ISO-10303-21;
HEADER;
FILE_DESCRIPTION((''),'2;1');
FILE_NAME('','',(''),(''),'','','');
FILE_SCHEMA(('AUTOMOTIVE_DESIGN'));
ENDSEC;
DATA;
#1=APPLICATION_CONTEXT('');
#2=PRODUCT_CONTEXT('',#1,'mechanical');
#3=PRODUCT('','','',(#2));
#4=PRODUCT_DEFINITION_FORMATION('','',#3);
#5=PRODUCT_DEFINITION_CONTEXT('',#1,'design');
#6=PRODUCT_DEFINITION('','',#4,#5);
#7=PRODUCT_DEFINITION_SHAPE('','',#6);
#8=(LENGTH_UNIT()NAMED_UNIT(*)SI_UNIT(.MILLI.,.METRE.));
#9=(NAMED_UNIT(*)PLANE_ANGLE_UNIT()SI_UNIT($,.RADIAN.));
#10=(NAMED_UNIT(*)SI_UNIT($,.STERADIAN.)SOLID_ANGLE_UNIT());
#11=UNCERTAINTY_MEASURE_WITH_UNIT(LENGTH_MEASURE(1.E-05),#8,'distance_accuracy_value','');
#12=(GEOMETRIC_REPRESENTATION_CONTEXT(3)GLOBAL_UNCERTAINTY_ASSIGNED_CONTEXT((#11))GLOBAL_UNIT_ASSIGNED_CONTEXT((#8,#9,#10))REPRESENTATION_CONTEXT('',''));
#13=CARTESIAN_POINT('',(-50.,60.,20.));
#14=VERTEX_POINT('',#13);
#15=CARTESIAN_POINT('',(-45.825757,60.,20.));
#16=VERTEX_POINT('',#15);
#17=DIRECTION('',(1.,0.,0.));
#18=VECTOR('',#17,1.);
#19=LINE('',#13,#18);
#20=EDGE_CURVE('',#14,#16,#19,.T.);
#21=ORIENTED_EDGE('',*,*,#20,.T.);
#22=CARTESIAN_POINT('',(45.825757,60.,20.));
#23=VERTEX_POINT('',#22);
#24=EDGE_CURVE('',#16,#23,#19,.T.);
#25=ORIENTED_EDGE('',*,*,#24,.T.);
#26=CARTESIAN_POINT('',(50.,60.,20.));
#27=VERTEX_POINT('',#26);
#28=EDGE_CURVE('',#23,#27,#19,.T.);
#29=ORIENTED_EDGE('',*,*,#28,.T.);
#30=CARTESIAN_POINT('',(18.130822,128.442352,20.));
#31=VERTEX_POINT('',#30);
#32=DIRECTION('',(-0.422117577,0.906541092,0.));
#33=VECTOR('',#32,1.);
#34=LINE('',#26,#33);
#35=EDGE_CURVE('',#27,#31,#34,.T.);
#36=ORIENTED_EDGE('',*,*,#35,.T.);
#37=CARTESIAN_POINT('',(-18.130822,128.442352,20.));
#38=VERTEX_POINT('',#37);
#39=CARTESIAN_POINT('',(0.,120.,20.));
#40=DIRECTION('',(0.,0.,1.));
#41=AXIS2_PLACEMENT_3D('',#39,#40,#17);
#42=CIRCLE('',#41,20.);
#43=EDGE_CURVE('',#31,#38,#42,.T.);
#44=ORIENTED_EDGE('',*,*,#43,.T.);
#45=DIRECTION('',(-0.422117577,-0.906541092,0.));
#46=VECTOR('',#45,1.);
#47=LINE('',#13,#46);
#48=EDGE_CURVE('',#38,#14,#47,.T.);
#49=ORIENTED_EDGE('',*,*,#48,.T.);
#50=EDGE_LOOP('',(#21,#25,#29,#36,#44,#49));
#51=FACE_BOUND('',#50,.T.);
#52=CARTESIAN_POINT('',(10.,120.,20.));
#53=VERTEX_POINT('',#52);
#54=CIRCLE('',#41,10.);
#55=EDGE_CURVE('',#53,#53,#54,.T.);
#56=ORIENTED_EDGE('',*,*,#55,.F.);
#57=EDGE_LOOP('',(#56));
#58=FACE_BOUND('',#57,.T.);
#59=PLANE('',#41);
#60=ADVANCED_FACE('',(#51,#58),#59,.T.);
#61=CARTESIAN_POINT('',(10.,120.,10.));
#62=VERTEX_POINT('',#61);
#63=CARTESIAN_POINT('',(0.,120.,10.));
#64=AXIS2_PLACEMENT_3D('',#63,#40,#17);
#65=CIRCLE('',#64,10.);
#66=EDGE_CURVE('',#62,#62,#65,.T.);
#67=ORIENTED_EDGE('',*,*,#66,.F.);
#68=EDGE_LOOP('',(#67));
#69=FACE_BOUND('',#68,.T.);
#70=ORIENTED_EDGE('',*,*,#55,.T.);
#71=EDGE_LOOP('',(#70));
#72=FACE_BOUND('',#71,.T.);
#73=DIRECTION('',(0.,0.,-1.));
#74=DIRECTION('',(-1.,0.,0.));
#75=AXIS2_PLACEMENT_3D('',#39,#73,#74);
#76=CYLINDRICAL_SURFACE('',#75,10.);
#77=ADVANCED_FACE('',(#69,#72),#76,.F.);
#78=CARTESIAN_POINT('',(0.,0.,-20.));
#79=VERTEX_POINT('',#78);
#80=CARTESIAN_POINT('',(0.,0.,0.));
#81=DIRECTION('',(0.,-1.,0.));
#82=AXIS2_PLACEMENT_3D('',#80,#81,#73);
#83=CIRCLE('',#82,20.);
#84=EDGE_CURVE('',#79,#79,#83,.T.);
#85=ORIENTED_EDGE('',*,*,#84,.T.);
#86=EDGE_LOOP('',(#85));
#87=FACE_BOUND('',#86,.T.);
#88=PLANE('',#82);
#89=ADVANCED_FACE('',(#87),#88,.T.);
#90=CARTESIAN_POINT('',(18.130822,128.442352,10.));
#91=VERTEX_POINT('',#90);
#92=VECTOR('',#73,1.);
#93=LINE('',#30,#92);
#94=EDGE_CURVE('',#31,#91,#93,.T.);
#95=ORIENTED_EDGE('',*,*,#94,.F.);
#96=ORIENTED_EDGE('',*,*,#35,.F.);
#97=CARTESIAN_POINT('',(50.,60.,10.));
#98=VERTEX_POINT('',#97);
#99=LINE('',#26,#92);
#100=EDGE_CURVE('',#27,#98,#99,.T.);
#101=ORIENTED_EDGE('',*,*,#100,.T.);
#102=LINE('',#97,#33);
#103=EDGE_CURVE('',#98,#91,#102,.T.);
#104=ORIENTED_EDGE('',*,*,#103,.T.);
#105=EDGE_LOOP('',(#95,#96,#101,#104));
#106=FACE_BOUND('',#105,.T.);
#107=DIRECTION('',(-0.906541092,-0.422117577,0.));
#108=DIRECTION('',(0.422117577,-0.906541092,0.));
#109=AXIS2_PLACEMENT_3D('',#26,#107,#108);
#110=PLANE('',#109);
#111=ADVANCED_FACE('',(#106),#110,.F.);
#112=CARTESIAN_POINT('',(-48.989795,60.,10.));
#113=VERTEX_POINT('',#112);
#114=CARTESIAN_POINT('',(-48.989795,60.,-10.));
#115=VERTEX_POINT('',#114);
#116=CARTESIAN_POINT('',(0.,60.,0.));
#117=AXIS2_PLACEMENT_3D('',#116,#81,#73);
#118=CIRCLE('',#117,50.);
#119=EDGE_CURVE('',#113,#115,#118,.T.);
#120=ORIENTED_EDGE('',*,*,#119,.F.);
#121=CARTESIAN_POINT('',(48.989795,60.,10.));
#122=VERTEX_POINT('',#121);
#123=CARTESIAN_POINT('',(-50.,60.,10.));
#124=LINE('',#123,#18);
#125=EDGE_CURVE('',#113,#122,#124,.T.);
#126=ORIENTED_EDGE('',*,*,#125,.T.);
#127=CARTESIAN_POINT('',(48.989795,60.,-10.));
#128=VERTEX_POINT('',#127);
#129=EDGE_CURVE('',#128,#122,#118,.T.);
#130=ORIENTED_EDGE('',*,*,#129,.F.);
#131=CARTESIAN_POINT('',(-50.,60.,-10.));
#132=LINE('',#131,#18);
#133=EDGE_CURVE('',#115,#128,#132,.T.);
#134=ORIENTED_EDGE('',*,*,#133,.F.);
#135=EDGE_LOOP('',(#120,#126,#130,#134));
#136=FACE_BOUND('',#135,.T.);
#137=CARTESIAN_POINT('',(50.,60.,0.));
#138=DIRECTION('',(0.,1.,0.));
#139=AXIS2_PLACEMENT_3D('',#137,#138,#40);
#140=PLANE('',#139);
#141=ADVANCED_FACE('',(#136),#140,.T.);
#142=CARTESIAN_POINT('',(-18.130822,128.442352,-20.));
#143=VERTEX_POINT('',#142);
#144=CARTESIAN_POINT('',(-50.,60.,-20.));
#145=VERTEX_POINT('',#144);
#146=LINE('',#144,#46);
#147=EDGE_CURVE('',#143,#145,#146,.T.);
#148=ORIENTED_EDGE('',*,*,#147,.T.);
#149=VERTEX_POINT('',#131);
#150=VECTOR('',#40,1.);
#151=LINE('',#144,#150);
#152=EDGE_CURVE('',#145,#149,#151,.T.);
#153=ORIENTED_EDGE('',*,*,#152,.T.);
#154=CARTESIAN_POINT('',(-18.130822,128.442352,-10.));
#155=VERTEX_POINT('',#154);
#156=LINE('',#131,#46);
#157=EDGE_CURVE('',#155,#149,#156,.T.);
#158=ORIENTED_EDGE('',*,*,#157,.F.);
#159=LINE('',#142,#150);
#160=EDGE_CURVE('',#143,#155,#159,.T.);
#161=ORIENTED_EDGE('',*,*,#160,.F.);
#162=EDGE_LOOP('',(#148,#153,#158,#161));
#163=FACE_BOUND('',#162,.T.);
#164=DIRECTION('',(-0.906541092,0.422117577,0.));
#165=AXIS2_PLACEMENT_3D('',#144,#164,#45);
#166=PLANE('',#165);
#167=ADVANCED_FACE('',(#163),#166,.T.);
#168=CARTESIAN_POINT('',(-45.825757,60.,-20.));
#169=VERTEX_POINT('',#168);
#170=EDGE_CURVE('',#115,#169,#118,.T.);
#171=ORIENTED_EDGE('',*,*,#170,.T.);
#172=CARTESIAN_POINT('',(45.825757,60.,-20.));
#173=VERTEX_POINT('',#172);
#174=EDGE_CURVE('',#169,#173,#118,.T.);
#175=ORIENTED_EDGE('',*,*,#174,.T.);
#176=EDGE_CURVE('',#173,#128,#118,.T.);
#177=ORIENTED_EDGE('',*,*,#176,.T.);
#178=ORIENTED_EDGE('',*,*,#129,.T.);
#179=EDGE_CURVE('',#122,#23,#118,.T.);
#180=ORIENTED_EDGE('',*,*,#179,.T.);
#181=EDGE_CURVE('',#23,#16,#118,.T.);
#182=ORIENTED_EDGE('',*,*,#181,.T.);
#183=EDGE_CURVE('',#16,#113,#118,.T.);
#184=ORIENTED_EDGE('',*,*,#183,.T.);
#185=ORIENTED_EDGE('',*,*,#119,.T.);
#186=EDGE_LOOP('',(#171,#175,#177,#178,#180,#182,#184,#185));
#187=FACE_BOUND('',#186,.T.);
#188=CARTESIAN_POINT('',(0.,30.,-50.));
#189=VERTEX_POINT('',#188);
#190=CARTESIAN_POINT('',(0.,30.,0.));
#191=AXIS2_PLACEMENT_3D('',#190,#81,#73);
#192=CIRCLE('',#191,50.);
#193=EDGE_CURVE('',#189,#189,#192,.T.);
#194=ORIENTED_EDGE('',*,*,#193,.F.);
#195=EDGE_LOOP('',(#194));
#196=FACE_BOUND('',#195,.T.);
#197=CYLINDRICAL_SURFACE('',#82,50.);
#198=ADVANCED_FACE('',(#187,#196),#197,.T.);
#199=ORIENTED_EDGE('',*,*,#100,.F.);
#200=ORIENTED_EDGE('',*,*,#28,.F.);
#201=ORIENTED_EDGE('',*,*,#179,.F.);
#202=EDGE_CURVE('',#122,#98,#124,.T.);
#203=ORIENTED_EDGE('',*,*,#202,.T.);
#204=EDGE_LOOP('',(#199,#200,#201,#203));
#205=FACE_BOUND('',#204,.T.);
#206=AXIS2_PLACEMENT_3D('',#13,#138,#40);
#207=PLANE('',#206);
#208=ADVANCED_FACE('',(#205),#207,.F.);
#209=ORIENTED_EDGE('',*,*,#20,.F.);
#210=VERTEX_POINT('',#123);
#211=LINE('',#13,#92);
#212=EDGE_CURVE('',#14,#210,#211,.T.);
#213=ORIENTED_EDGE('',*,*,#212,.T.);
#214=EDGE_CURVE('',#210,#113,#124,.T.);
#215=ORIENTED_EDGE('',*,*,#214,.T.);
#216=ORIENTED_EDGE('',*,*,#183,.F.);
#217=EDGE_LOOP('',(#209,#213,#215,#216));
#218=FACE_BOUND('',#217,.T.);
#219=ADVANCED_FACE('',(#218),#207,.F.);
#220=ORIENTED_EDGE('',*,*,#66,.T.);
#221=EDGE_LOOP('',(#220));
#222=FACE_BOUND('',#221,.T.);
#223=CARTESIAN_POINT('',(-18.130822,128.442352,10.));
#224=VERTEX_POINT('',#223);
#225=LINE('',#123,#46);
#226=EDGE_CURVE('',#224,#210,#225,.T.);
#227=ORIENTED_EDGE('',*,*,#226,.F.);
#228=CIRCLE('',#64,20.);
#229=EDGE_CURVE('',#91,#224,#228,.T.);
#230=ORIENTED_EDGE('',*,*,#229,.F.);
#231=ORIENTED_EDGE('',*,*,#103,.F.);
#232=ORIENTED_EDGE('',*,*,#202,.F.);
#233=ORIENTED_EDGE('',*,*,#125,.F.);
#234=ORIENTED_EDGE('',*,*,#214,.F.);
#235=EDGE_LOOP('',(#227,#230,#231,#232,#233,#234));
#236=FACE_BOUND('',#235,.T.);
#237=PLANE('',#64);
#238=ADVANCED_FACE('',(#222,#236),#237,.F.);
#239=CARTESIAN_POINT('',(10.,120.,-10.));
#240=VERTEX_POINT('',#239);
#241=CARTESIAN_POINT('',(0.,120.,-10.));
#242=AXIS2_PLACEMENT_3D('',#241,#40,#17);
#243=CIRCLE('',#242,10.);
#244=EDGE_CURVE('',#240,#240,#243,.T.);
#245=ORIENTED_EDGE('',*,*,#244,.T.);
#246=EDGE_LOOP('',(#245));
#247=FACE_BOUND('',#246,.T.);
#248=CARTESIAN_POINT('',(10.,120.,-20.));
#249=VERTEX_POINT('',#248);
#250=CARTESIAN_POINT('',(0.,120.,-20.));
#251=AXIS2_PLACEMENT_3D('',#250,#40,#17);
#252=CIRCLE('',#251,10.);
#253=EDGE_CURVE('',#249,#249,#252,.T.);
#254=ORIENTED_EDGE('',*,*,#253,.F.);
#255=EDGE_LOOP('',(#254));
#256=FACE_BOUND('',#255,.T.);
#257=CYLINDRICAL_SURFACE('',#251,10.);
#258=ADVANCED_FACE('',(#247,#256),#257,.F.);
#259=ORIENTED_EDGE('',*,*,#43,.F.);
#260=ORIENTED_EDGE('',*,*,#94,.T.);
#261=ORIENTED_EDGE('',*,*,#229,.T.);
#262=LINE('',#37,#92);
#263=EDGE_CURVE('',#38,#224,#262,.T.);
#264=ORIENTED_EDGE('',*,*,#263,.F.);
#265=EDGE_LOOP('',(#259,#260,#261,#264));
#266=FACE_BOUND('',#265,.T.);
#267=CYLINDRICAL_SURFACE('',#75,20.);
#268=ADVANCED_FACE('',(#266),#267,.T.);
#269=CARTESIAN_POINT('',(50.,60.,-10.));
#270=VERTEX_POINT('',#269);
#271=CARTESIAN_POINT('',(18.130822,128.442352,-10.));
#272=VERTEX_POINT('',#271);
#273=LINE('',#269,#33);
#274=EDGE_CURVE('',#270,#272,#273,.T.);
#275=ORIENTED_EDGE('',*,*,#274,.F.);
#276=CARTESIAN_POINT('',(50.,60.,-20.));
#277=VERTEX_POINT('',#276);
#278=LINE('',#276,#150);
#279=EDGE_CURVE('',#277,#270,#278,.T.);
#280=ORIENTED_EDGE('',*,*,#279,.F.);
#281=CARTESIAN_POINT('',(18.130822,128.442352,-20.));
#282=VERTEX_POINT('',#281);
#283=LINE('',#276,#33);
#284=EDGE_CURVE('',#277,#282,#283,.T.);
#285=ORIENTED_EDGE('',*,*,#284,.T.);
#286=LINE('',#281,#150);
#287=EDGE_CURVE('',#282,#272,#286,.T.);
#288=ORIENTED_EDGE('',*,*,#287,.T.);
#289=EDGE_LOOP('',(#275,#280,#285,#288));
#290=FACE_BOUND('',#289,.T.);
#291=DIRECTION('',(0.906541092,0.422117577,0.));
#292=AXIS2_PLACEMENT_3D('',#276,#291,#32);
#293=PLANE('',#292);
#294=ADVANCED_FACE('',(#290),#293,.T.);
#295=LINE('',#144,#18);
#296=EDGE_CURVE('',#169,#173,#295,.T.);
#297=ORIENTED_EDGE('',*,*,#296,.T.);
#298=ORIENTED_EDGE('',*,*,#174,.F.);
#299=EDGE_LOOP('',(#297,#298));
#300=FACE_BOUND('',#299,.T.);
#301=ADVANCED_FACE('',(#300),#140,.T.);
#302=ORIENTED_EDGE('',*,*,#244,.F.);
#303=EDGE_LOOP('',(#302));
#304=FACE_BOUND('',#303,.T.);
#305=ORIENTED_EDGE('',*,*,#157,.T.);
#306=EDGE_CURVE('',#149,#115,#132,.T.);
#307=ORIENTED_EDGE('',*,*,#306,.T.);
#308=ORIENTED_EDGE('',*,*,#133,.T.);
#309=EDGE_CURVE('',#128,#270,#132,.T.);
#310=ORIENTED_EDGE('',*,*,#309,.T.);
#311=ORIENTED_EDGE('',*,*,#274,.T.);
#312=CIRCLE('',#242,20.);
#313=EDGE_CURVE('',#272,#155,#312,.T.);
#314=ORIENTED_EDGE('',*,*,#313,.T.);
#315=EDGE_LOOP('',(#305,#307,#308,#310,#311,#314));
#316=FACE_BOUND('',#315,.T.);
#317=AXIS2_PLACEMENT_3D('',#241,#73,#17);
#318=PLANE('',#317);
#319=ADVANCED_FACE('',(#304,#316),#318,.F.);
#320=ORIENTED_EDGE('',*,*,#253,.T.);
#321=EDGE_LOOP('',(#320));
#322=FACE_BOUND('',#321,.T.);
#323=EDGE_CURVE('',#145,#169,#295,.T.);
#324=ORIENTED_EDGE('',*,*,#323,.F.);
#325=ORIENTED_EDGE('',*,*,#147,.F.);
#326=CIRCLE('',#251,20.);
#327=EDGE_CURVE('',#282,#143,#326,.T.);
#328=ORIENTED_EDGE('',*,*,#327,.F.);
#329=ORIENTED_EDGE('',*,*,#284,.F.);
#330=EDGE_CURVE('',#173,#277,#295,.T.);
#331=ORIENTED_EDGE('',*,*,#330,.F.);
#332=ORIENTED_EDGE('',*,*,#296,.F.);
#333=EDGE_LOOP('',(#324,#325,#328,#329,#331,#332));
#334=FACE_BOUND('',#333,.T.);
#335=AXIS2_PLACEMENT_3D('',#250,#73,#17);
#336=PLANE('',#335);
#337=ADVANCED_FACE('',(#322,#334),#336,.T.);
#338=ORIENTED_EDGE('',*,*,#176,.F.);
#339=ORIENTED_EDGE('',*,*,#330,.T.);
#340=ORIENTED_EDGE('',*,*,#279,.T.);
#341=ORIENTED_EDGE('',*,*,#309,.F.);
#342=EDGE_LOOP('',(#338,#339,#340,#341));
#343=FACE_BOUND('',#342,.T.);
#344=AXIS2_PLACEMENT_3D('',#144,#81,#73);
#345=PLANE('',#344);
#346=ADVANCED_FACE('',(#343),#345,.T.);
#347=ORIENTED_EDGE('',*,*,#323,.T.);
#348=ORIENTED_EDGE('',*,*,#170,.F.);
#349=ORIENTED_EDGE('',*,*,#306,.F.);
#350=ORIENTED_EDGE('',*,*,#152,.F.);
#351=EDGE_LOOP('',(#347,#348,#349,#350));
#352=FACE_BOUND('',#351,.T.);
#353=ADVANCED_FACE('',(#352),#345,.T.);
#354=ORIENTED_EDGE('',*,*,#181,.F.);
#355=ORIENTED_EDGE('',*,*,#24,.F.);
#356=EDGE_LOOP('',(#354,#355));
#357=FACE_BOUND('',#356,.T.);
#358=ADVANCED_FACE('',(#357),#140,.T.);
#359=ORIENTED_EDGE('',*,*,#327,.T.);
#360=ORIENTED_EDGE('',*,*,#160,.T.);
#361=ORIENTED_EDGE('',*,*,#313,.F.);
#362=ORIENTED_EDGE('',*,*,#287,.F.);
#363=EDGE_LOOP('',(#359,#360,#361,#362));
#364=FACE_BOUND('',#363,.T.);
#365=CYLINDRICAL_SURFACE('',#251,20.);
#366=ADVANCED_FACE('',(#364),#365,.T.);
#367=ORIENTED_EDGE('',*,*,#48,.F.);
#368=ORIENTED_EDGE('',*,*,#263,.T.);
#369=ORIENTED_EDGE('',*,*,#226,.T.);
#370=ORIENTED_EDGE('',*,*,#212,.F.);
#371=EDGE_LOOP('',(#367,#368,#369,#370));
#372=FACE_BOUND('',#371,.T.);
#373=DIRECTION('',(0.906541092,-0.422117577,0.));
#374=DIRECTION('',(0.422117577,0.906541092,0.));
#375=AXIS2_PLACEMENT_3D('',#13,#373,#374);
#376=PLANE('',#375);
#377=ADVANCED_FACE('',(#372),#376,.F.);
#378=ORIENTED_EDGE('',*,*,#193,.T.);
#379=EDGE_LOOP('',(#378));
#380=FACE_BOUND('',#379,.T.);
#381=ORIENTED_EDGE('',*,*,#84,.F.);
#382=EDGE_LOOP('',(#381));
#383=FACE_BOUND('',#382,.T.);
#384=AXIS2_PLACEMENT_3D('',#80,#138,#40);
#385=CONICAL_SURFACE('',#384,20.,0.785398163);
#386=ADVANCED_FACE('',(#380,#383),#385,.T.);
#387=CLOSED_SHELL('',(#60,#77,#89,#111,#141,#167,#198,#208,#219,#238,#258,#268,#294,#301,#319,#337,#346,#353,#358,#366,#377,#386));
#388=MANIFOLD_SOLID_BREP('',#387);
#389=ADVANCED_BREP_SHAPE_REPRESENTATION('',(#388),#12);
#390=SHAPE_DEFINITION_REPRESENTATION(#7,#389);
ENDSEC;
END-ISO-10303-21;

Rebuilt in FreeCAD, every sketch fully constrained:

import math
import FreeCAD as App
import Part
import Sketcher
from FreeCAD import Vector

doc = App.newDocument("Part")
body = doc.addObject("PartDesign::Body", "Body")

# Sketch on XY plane
sketch1 = doc.addObject("Sketcher::SketchObject", "Sketch")
body.addObject(sketch1)
sketch1.AttachmentSupport = (doc.XY_Plane, [""])
sketch1.MapMode = "FlatFace"
sketch1.addGeometry(Part.LineSegment(Vector(0, 60, 0), Vector(0, 0, 0)), False)
sketch1.addGeometry(Part.LineSegment(Vector(0, 0, 0), Vector(20, 0, 0)), False)
sketch1.addGeometry(Part.LineSegment(Vector(20, 0, 0), Vector(50, 30, 0)), False)
sketch1.addGeometry(Part.LineSegment(Vector(50, 30, 0), Vector(50, 60, 0)), False)
sketch1.addGeometry(Part.LineSegment(Vector(50, 60, 0), Vector(0, 60, 0)), False)
sketch1.addConstraint(Sketcher.Constraint("Coincident", 0, 2, 1, 1))
sketch1.addConstraint(Sketcher.Constraint("Coincident", 1, 2, 2, 1))
sketch1.addConstraint(Sketcher.Constraint("Coincident", 2, 2, 3, 1))
sketch1.addConstraint(Sketcher.Constraint("Coincident", 3, 2, 4, 1))
sketch1.addConstraint(Sketcher.Constraint("Coincident", 4, 2, 0, 1))
sketch1.addConstraint(Sketcher.Constraint("Vertical", 0))
sketch1.addConstraint(Sketcher.Constraint("Horizontal", 1))
sketch1.addConstraint(Sketcher.Constraint("Vertical", 3))
sketch1.addConstraint(Sketcher.Constraint("Horizontal", 4))
sketch1.addConstraint(Sketcher.Constraint("Coincident", 0, 2, -1, 1))
sketch1.addConstraint(Sketcher.Constraint("DistanceX", 1, 1, 1, 2, 20.0))
sketch1.addConstraint(Sketcher.Constraint("DistanceX", 4, 2, 4, 1, 50.0))
sketch1.addConstraint(Sketcher.Constraint("DistanceY", 0, 2, 0, 1, 60.0))
sketch1.addConstraint(Sketcher.Constraint("DistanceY", 3, 1, 3, 2, 30.0))
revolution = doc.addObject("PartDesign::Revolution", "Revolution")
body.addObject(revolution)
revolution.Profile = sketch1
revolution.ReferenceAxis = (sketch1, ["V_Axis"])
revolution.Angle = 360

# Sketch on XY plane
sketch2 = doc.addObject("Sketcher::SketchObject", "Sketch001")
body.addObject(sketch2)
sketch2.AttachmentSupport = (doc.XY_Plane, [""])
sketch2.MapMode = "FlatFace"
sketch2.AttachmentOffset = App.Placement(Vector(0, 0, 10), App.Rotation())
sketch2.addGeometry(Part.LineSegment(Vector(50, 60, 0), Vector(18.130822, 128.442352, 0)), False)
sketch2.addGeometry(Part.ArcOfCircle(Part.Circle(Vector(0, 120, 0), Vector(0, 0, 1), 20), math.radians(24.968351), math.radians(155.031649)), False)
sketch2.addGeometry(Part.LineSegment(Vector(-18.130822, 128.442352, 0), Vector(-50, 60, 0)), False)
sketch2.addGeometry(Part.LineSegment(Vector(-50, 60, 0), Vector(50, 60, 0)), False)
sketch2.addGeometry(Part.Circle(Vector(0, 120, 0), Vector(0, 0, 1), 10), False)
sketch2.addConstraint(Sketcher.Constraint("Tangent", 0, 2, 1, 1))
sketch2.addConstraint(Sketcher.Constraint("Tangent", 1, 2, 2, 1))
sketch2.addConstraint(Sketcher.Constraint("Coincident", 2, 2, 3, 1))
sketch2.addConstraint(Sketcher.Constraint("Coincident", 3, 2, 0, 1))
sketch2.addConstraint(Sketcher.Constraint("Horizontal", 3))
sketch2.addConstraint(Sketcher.Constraint("Coincident", 4, 3, 1, 3))
sketch2.addConstraint(Sketcher.Constraint("Symmetric", 0, 2, 1, 2, -2))
sketch2.addConstraint(Sketcher.Constraint("Diameter", 4, 20.0))
sketch2.addConstraint(Sketcher.Constraint("Radius", 1, 20.0))
sketch2.addConstraint(Sketcher.Constraint("DistanceX", 3, 1, 3, 2, 100.0))
sketch2.addConstraint(Sketcher.Constraint("DistanceY", -1, 1, 1, 3, 120.0))
sketch2.addConstraint(Sketcher.Constraint("DistanceY", -1, 1, 2, 2, 60.0))
pad1 = doc.addObject("PartDesign::Pad", "Pad")
body.addObject(pad1)
pad1.Profile = sketch2
pad1.Length = 10
doc.recompute()

mirrored = doc.addObject("PartDesign::Mirrored", "Mirrored")
body.addObject(mirrored)
mirrored.Originals = [pad1]
mirrored.MirrorPlane = (doc.XY_Plane, [""])
body.Tip = mirrored

doc.recompute()
